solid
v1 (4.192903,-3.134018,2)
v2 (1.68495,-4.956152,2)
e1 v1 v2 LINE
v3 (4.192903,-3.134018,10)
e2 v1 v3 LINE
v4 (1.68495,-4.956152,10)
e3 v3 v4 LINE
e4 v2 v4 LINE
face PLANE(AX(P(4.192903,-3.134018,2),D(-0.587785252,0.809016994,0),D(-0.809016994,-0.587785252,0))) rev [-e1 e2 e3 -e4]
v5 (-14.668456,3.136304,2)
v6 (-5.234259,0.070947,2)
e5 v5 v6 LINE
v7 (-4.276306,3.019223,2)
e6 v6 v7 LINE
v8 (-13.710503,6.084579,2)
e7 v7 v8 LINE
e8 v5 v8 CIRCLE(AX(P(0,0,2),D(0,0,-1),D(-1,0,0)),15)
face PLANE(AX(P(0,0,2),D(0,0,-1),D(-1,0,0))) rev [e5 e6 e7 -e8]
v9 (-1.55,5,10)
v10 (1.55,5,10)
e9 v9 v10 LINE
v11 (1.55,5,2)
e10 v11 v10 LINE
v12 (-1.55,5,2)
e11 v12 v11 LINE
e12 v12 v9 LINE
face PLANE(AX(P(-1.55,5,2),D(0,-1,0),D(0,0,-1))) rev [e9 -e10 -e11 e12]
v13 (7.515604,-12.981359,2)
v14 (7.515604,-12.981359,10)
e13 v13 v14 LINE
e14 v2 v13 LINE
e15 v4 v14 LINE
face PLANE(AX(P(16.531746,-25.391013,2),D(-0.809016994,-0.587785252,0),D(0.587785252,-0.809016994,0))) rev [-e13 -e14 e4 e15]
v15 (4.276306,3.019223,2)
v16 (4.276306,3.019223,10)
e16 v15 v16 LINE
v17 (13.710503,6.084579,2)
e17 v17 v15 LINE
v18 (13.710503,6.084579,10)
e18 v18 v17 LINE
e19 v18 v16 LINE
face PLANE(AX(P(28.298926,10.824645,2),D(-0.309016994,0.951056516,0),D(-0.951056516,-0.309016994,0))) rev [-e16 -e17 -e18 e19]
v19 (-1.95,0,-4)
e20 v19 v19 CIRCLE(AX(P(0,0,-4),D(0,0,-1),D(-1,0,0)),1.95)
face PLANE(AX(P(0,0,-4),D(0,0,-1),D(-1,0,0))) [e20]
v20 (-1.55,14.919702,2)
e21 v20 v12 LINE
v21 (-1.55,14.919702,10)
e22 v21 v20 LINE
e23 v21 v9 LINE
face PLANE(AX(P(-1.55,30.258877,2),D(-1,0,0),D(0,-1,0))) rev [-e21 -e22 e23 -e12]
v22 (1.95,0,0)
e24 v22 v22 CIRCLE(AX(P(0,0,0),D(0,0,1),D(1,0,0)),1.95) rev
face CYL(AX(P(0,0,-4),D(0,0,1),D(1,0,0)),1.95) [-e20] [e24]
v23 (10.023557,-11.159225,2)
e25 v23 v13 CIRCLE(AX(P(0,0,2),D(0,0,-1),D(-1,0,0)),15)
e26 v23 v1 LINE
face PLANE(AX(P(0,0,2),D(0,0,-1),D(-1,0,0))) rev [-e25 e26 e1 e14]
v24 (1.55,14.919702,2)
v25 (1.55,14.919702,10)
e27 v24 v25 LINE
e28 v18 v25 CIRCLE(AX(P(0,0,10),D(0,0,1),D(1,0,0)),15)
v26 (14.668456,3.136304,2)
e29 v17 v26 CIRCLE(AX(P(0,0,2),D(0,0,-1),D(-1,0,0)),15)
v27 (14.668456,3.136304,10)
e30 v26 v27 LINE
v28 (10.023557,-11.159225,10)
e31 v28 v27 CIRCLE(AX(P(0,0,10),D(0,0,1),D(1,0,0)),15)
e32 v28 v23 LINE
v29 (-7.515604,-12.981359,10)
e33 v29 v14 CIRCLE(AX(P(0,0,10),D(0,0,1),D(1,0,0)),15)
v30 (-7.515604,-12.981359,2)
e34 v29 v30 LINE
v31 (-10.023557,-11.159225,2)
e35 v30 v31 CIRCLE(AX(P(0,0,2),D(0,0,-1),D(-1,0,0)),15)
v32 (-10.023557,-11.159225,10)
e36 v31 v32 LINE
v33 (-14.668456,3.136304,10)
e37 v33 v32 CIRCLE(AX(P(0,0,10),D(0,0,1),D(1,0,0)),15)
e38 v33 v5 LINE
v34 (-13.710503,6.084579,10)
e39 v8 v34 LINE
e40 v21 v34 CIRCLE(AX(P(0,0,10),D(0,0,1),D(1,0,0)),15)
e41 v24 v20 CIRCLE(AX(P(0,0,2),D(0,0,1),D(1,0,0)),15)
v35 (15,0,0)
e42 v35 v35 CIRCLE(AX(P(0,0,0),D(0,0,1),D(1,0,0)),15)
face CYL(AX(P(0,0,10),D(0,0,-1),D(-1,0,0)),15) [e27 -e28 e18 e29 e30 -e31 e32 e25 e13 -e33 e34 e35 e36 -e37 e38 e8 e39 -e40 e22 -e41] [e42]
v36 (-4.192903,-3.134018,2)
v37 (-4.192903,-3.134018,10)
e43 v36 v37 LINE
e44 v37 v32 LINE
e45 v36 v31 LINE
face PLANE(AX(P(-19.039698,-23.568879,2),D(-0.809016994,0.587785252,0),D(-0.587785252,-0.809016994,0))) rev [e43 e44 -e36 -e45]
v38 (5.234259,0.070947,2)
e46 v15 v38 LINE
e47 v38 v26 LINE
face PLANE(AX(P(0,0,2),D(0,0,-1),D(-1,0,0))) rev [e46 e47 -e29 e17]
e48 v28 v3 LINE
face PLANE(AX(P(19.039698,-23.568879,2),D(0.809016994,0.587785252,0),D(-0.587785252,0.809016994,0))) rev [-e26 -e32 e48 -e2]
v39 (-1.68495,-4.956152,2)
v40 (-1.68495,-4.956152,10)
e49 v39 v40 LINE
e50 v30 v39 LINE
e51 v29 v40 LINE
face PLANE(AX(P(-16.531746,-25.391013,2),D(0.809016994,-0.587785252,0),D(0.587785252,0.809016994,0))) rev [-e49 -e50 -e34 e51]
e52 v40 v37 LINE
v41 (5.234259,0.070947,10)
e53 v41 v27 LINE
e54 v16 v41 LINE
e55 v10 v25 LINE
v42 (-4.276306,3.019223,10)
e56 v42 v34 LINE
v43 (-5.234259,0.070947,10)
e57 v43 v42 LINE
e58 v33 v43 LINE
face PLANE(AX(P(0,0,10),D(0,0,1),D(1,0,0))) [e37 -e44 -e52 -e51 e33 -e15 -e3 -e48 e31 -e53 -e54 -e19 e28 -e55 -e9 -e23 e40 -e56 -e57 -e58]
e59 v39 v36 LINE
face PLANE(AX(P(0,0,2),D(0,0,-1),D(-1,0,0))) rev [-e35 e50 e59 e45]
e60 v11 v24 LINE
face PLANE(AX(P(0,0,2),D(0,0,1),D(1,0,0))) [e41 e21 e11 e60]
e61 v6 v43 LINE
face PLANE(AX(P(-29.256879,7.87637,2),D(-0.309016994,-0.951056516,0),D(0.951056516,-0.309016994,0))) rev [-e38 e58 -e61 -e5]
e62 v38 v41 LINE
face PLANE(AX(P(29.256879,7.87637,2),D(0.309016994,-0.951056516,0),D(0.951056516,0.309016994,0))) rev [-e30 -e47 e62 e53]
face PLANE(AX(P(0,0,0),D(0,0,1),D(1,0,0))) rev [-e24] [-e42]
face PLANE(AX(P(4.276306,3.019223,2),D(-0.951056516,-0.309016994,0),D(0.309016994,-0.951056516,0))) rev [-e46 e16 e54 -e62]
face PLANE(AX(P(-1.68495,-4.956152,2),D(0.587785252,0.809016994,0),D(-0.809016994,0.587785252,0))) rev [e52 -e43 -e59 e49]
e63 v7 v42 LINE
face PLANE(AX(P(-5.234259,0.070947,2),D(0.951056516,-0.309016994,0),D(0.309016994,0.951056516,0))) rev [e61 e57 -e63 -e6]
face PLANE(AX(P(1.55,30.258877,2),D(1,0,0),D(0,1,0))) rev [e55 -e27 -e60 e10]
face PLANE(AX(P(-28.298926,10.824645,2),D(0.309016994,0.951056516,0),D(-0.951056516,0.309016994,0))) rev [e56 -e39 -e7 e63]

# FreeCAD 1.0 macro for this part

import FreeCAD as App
import Part
import Sketcher
from FreeCAD import Vector
Q = App.Units.Quantity


def add_polygon(sketch, points):
    """Adds a closed chain of lines whose ends are joined by coincident constraints."""
    first, n = sketch.GeometryCount, len(points)
    for a, b in zip(points, points[1:] + points[:1]):
        sketch.addGeometry(Part.LineSegment(App.Vector(*a, 0), App.Vector(*b, 0)), False)
    for i in range(n):
        sketch.addConstraint(Sketcher.Constraint("Coincident", first + i, 2, first + (i + 1) % n, 1))

doc = App.newDocument("Part")
params = doc.addObject("Spreadsheet::Sheet", "Params")
for row, (alias, value) in enumerate([
    ("sketch1_diameter", "30 mm"),
    ("pad1_length", "10 mm"),
    ("sketch2_diameter", "3.9 mm"),
    ("pad2_length", "4 mm"),
    ("sketch3_width", "3.1 mm"),
    ("sketch3_length", "3.1 mm"),
    ("pocket1_length", "8 mm"),
], start=1):
    params.set(f"A{row}", alias)
    params.set(f"B{row}", "=" + value)
    params.setAlias(f"B{row}", alias)

body = doc.addObject("PartDesign::Body", "Body")

sketch1 = doc.addObject("Sketcher::SketchObject", "Sketch")
body.addObject(sketch1)
sketch1.AttachmentSupport = (doc.XY_Plane, [""])
sketch1.MapMode = "FlatFace"
sketch1.addGeometry(Part.Circle(Vector(0, 0, 0), Vector(0, 0, 1), 15), False)
sketch1.addConstraint([
    Sketcher.Constraint("Coincident", 0, 3, -1, 1),
    Sketcher.Constraint("Diameter", 0, Q("30 mm")),
])
sketch1.setExpression("Constraints[1]", "Params.sketch1_diameter")
pad1 = doc.addObject("PartDesign::Pad", "Pad")
body.addObject(pad1)
pad1.Profile = sketch1
pad1.setExpression("Length", "Params.pad1_length")

sketch2 = doc.addObject("Sketcher::SketchObject", "Sketch001")
body.addObject(sketch2)
sketch2.AttachmentSupport = (doc.XY_Plane, [""])
sketch2.MapMode = "FlatFace"
sketch2.addGeometry(Part.Circle(Vector(0, 0, 0), Vector(0, 0, 1), 1.9), False)
sketch2.addConstraint([
    Sketcher.Constraint("Coincident", 0, 3, -1, 1),
    Sketcher.Constraint("Diameter", 0, Q("3.9 mm")),
])
sketch2.setExpression("Constraints[1]", "Params.sketch2_diameter")
pad2 = doc.addObject("PartDesign::Pad", "Pad001")
body.addObject(pad2)
pad2.Profile = sketch2
pad2.setExpression("Length", "Params.pad2_length")
pad2.Reversed = True

sketch3 = doc.addObject("Sketcher::SketchObject", "Sketch002")
body.addObject(sketch3)
sketch3.AttachmentSupport = (doc.XY_Plane, [""])
sketch3.MapMode = "FlatFace"
sketch3.AttachmentOffset = App.Placement(Vector(0, 0, 10), App.Rotation())
add_polygon(sketch3, [(5.2, 0.1), (29.3, 7.9), (28.3, 10.8), (4.3, 3)])
add_polygon(sketch3, [(-1.6, 30.3), (-1.6, 5), (1.6, 5), (1.6, 30.3)])
add_polygon(sketch3, [(1.7, -5), (16.5, -25.4), (19, -23.6), (4.2, -3.1)])
add_polygon(sketch3, [(-4.2, -3.1), (-19, -23.6), (-16.5, -25.4), (-1.7, -5)])
add_polygon(sketch3, [(-4.3, 3), (-28.3, 10.8), (-29.3, 7.9), (-5.2, 0.1)])
sketch3.addConstraint([
    Sketcher.Constraint("Vertical", 4),
    Sketcher.Constraint("Horizontal", 5),
    Sketcher.Constraint("Vertical", 6),
    Sketcher.Constraint("Horizontal", 7),
    Sketcher.Constraint("Symmetric", 9, 2, 12, 2, -2),
    Sketcher.Constraint("Symmetric", 8, 2, 13, 2, -2),
    Sketcher.Constraint("Symmetric", 11, 2, 14, 2, -2),
    Sketcher.Constraint("Symmetric", 10, 2, 15, 2, -2),
    Sketcher.Constraint("Symmetric", 1, 2, 16, 2, -2),
    Sketcher.Constraint("Symmetric", 0, 2, 17, 2, -2),
    Sketcher.Constraint("Symmetric", 3, 2, 18, 2, -2),
    Sketcher.Constraint("Symmetric", 2, 2, 19, 2, -2),
    Sketcher.Constraint("Perpendicular", 0, 1),
    Sketcher.Constraint("Perpendicular", 1, 2),
    Sketcher.Constraint("Perpendicular", 2, 3),
    Sketcher.Constraint("Perpendicular", 8, 9),
    Sketcher.Constraint("Perpendicular", 9, 10),
    Sketcher.Constraint("Perpendicular", 10, 11),
    Sketcher.Constraint("Equal", 2, 8),
    Sketcher.Constraint("Equal", 3, 9),
    Sketcher.Constraint("Angle", 0, Q("18 deg")),
    Sketcher.Constraint("Angle", 8, Q("-54 deg")),
    Sketcher.Constraint("DistanceX", 5, 1, 5, 2, Q("3.1 mm")),
    Sketcher.Constraint("DistanceY", -1, 1, 4, 2, Q("5 mm")),
    Sketcher.Constraint("Distance", 1, Q("3.1 mm")),
    Sketcher.Constraint("DistanceX", 4, 2, -1, 1, Q("1.55 mm")),
    Sketcher.Constraint("DistanceX", -1, 1, 9, 2, Q("19.039698 mm")),
    Sketcher.Constraint("DistanceY", 9, 2, 2, 2, Q("26.588101 mm")),
    Sketcher.Constraint("DistanceY", 11, 2, 3, 2, Q("5.027099 mm")),
    Sketcher.Constraint("DistanceY", 4, 2, 4, 1, Q("25.258877 mm")),
    Sketcher.Constraint("DistanceX", -1, 1, 0, 2, Q("29.256879 mm")),
    Sketcher.Constraint("DistanceY", -1, 1, 0, 2, Q("7.87637 mm")),
])
sketch3.setExpression("Constraints[42]", "Params.sketch3_width")
sketch3.setExpression("Constraints[44]", "Params.sketch3_length")
pocket1 = doc.addObject("PartDesign::Pocket", "Pocket")
body.addObject(pocket1)
pocket1.Profile = sketch3
pocket1.setExpression("Length", "Params.pocket1_length")

doc.recompute()
